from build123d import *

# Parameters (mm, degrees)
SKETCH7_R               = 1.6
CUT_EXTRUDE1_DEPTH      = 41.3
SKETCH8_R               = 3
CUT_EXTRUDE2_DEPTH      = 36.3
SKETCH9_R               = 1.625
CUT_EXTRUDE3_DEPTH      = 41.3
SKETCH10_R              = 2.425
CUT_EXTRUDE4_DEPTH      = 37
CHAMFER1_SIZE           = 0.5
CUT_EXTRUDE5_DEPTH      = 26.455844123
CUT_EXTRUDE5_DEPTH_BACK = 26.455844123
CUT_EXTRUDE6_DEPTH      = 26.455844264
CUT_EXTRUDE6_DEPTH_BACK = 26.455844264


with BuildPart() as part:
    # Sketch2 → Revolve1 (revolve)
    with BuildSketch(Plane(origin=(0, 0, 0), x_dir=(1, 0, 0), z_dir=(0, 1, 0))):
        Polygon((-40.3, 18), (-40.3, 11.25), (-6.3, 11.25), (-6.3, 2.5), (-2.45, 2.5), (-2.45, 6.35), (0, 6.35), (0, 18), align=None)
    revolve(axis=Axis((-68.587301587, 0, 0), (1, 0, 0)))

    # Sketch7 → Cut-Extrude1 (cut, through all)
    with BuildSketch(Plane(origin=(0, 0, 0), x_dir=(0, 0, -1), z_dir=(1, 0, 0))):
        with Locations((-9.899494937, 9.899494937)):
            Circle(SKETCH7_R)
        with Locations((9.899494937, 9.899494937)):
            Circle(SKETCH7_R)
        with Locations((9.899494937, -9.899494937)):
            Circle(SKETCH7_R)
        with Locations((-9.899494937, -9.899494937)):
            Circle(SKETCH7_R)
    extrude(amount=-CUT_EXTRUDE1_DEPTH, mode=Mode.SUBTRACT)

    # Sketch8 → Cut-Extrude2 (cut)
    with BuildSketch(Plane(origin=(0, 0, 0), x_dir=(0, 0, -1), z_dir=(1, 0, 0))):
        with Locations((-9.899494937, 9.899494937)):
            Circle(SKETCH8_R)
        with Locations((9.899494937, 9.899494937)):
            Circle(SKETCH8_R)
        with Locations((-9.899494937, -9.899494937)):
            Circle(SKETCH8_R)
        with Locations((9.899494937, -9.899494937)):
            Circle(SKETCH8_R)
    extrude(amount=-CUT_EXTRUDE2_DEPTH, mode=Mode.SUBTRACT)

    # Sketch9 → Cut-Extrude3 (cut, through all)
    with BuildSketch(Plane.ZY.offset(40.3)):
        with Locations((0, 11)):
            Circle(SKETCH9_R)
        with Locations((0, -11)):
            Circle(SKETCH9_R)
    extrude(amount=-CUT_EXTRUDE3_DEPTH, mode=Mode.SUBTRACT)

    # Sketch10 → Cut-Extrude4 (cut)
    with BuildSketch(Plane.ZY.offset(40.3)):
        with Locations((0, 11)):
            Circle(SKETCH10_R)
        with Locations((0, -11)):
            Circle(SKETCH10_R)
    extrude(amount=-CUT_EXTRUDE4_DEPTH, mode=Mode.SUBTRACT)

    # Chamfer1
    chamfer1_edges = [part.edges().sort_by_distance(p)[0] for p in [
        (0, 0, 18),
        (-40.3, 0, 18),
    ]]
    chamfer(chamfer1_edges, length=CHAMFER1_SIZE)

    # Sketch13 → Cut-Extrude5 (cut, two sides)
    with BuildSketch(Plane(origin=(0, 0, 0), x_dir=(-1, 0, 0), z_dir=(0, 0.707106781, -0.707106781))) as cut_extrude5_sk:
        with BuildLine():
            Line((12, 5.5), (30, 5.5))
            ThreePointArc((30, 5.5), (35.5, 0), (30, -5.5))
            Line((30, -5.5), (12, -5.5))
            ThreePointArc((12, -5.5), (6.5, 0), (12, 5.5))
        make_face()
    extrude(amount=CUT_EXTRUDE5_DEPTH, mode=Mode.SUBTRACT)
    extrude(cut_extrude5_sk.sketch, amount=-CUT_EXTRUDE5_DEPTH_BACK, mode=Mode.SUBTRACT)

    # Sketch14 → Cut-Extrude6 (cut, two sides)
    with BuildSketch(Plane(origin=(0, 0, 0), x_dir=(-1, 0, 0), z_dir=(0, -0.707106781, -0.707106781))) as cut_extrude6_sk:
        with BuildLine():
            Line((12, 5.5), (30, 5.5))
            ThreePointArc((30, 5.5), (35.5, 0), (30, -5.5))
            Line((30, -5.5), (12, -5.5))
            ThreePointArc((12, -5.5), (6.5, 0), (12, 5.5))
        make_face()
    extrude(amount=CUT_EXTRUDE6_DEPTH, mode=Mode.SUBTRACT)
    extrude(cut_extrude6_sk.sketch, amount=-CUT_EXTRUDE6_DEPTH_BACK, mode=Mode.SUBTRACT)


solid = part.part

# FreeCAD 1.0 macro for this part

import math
import FreeCAD as App
import Part
import Sketcher

V = App.Vector
Q = App.Units.Quantity


def edges_at(feature, points):
    """Names of the edges that pass closest to the given points."""
    edges = feature.Shape.Edges
    near = lambda p: min(range(len(edges)), key=lambda i: edges[i].distToShape(Part.Vertex(*p))[0])
    return sorted({f"Edge{near(p) + 1}" for p in points})

doc = App.newDocument("Part")
body = doc.addObject("PartDesign::Body", "Body")

# Sketch on XZ plane
sketch1 = doc.addObject("Sketcher::SketchObject", "Sketch")
body.addObject(sketch1)
sketch1.AttachmentSupport = (doc.XZ_Plane, [""])
sketch1.MapMode = "FlatFace"
sketch1.addGeometry([
    Part.LineSegment(V(-40.3, -18, 0), V(-40.3, -11.25, 0)),  # 0
    Part.LineSegment(V(-40.3, -11.25, 0), V(-6.3, -11.25, 0)),  # 1
    Part.LineSegment(V(-6.3, -11.25, 0), V(-6.3, -2.5, 0)),  # 2
    Part.LineSegment(V(-6.3, -2.5, 0), V(-2.45, -2.5, 0)),  # 3
    Part.LineSegment(V(-2.45, -2.5, 0), V(-2.45, -6.35, 0)),  # 4
    Part.LineSegment(V(-2.45, -6.35, 0), V(0, -6.35, 0)),  # 5
    Part.LineSegment(V(0, -6.35, 0), V(0, -18, 0)),  # 6
    Part.LineSegment(V(0, -18, 0), V(-40.3, -18, 0)),  # 7
], False)
sketch1.addConstraint([
    Sketcher.Constraint("Coincident", 0, 2, 1, 1),
    Sketcher.Constraint("Coincident", 1, 2, 2, 1),
    Sketcher.Constraint("Coincident", 2, 2, 3, 1),
    Sketcher.Constraint("Coincident", 3, 2, 4, 1),
    Sketcher.Constraint("Coincident", 4, 2, 5, 1),
    Sketcher.Constraint("Coincident", 5, 2, 6, 1),
    Sketcher.Constraint("Coincident", 6, 2, 7, 1),
    Sketcher.Constraint("Coincident", 7, 2, 0, 1),
    Sketcher.Constraint("Vertical", 0),
    Sketcher.Constraint("Horizontal", 1),
    Sketcher.Constraint("Vertical", 2),
    Sketcher.Constraint("Horizontal", 3),
    Sketcher.Constraint("Vertical", 4),
    Sketcher.Constraint("Horizontal", 5),
    Sketcher.Constraint("Vertical", 6),
    Sketcher.Constraint("Horizontal", 7),
    Sketcher.Constraint("PointOnObject", 5, 2, -2),
    Sketcher.Constraint("Equal", 3, 4),
    Sketcher.Constraint("DistanceX", 1, 1, 1, 2, Q("34 mm")),
    Sketcher.Constraint("DistanceX", 7, 2, 7, 1, Q("40.3 mm")),
    Sketcher.Constraint("DistanceY", 6, 2, -1, 1, Q("18 mm")),
    Sketcher.Constraint("DistanceX", 3, 1, 3, 2, Q("3.85 mm")),
    Sketcher.Constraint("DistanceY", 0, 1, 0, 2, Q("6.75 mm")),
    Sketcher.Constraint("DistanceY", 2, 1, 2, 2, Q("8.75 mm")),
])
revolution = doc.addObject("PartDesign::Revolution", "Revolution")
body.addObject(revolution)
revolution.Profile = sketch1
revolution.ReferenceAxis = (sketch1, ["H_Axis"])
revolution.Angle = 360

# Sketch on YZ plane
sketch2 = doc.addObject("Sketcher::SketchObject", "Sketch001")
body.addObject(sketch2)
sketch2.AttachmentSupport = (doc.YZ_Plane, [""])
sketch2.MapMode = "FlatFace"
sketch2.addGeometry([
    Part.Circle(V(9.899495, 9.899495, 0), V(0, 0, 1), 1.6),
    Part.Circle(V(9.899495, -9.899495, 0), V(0, 0, 1), 1.6),
    Part.Circle(V(-9.899495, -9.899495, 0), V(0, 0, 1), 1.6),
    Part.Circle(V(-9.899495, 9.899495, 0), V(0, 0, 1), 1.6),
], False)
sketch2.addConstraint([
    Sketcher.Constraint("Equal", 0, 1),
    Sketcher.Constraint("Equal", 1, 2),
    Sketcher.Constraint("Equal", 2, 3),
    Sketcher.Constraint("Symmetric", 0, 3, 2, 3, -1, 1),
    Sketcher.Constraint("Symmetric", 1, 3, 3, 3, -1, 1),
    Sketcher.Constraint("Symmetric", 1, 3, 2, 3, -2),
    Sketcher.Constraint("Diameter", 0, Q("3.2 mm")),
    Sketcher.Constraint("DistanceY", 1, 3, 0, 3, Q("19.79899 mm")),
    Sketcher.Constraint("DistanceX", 2, 3, 1, 3, Q("19.79899 mm")),
])
pocket1 = doc.addObject("PartDesign::Pocket", "Pocket")
body.addObject(pocket1)
pocket1.Profile = sketch2
pocket1.Type = "ThroughAll"

# Sketch on YZ plane
sketch3 = doc.addObject("Sketcher::SketchObject", "Sketch002")
body.addObject(sketch3)
sketch3.AttachmentSupport = (doc.YZ_Plane, [""])
sketch3.MapMode = "FlatFace"
sketch3.addGeometry([
    Part.Circle(V(9.899495, 9.899495, 0), V(0, 0, 1), 3),
    Part.Circle(V(9.899495, -9.899495, 0), V(0, 0, 1), 3),
    Part.Circle(V(-9.899495, 9.899495, 0), V(0, 0, 1), 3),
    Part.Circle(V(-9.899495, -9.899495, 0), V(0, 0, 1), 3),
], False)
sketch3.addConstraint([
    Sketcher.Constraint("Equal", 0, 1),
    Sketcher.Constraint("Equal", 1, 2),
    Sketcher.Constraint("Equal", 2, 3),
    Sketcher.Constraint("Symmetric", 1, 3, 2, 3, -1, 1),
    Sketcher.Constraint("Symmetric", 0, 3, 3, 3, -1, 1),
    Sketcher.Constraint("Symmetric", 0, 3, 2, 3, -2),
    Sketcher.Constraint("Diameter", 0, Q("6 mm")),
    Sketcher.Constraint("DistanceY", 1, 3, 0, 3, Q("19.79899 mm")),
    Sketcher.Constraint("DistanceX", 2, 3, 0, 3, Q("19.79899 mm")),
])
pocket2 = doc.addObject("PartDesign::Pocket", "Pocket001")
body.addObject(pocket2)
pocket2.Profile = sketch3
pocket2.Length = 36.3

# Sketch on YZ plane
sketch4 = doc.addObject("Sketcher::SketchObject", "Sketch003")
body.addObject(sketch4)
sketch4.AttachmentSupport = (doc.YZ_Plane, [""])
sketch4.MapMode = "FlatFace"
sketch4.AttachmentOffset = App.Placement(V(0, 0, -40.3), App.Rotation())
sketch4.addGeometry([
    Part.Circle(V(11, 0, 0), V(0, 0, 1), 1.625),
    Part.Circle(V(-11, 0, 0), V(0, 0, 1), 1.625),
], False)
sketch4.addConstraint([
    Sketcher.Constraint("Equal", 0, 1),
    Sketcher.Constraint("Symmetric", 0, 3, 1, 3, -1, 1),
    Sketcher.Constraint("PointOnObject", 0, 3, -1),
    Sketcher.Constraint("Diameter", 0, Q("3.25 mm")),
    Sketcher.Constraint("DistanceX", -1, 1, 0, 3, Q("11 mm")),
])
pocket3 = doc.addObject("PartDesign::Pocket", "Pocket002")
body.addObject(pocket3)
pocket3.Profile = sketch4
pocket3.Type = "ThroughAll"
pocket3.Reversed = True

# Sketch on YZ plane
sketch5 = doc.addObject("Sketcher::SketchObject", "Sketch004")
body.addObject(sketch5)
sketch5.AttachmentSupport = (doc.YZ_Plane, [""])
sketch5.MapMode = "FlatFace"
sketch5.AttachmentOffset = App.Placement(V(0, 0, -40.3), App.Rotation())
sketch5.addGeometry([
    Part.Circle(V(11, 0, 0), V(0, 0, 1), 2.425),
    Part.Circle(V(-11, 0, 0), V(0, 0, 1), 2.425),
], False)
sketch5.addConstraint([
    Sketcher.Constraint("Equal", 0, 1),
    Sketcher.Constraint("Symmetric", 0, 3, 1, 3, -1, 1),
    Sketcher.Constraint("PointOnObject", 0, 3, -1),
    Sketcher.Constraint("Diameter", 0, Q("4.85 mm")),
    Sketcher.Constraint("DistanceX", -1, 1, 0, 3, Q("11 mm")),
])
pocket4 = doc.addObject("PartDesign::Pocket", "Pocket003")
body.addObject(pocket4)
pocket4.Profile = sketch5
pocket4.Length = 37
pocket4.Reversed = True
doc.recompute()

chamfer = doc.addObject("PartDesign::Chamfer", "Chamfer")
body.addObject(chamfer)
chamfer.Base = (pocket4, edges_at(pocket4, [(0, 0, 18), (-40.3, 0, 18)]))
chamfer.Size = 0.5

# Sketch on an angled plane
sketch6 = doc.addObject("Sketcher::SketchObject", "Sketch005")
body.addObject(sketch6)
sketch6.Placement = App.Placement(V(0, 0, 0), App.Rotation(V(-1, 0, 0), V(0, 0.707106781, 0.707106781), V(0, 0.707106781, -0.707106781), "ZXY"))
sketch6.addGeometry([
    Part.LineSegment(V(30, 5.5, 0), V(12, 5.5, 0)),
    Part.ArcOfCircle(Part.Circle(V(12, 0, 0), V(0, 0, 1), 5.5), math.radians(90), math.radians(270)),
    Part.LineSegment(V(12, -5.5, 0), V(30, -5.5, 0)),
    Part.ArcOfCircle(Part.Circle(V(30, 0, 0), V(0, 0, 1), 5.5), math.radians(-90), math.radians(90)),
], False)
sketch6.addConstraint([
    Sketcher.Constraint("Tangent", 0, 2, 1, 1),
    Sketcher.Constraint("Tangent", 1, 2, 2, 1),
    Sketcher.Constraint("Tangent", 2, 2, 3, 1),
    Sketcher.Constraint("Tangent", 3, 2, 0, 1),
    Sketcher.Constraint("Horizontal", 0),
    Sketcher.Constraint("Horizontal", 2),
    Sketcher.Constraint("PointOnObject", 1, 3, -1),
    Sketcher.Constraint("Radius", 1, Q("5.5 mm")),
    Sketcher.Constraint("DistanceX", 0, 2, 0, 1, Q("18 mm")),
    Sketcher.Constraint("DistanceX", -1, 1, 1, 3, Q("12 mm")),
])
pocket5 = doc.addObject("PartDesign::Pocket", "Pocket004")
body.addObject(pocket5)
pocket5.Profile = sketch6
pocket5.Type = "ThroughAll"
pocket5.Midplane = True

# Sketch on an angled plane
sketch7 = doc.addObject("Sketcher::SketchObject", "Sketch006")
body.addObject(sketch7)
sketch7.Placement = App.Placement(V(0, 0, 0), App.Rotation(V(-1, 0, 0), V(0, 0.707106781, -0.707106781), V(0, -0.707106781, -0.707106781), "ZXY"))
sketch7.addGeometry([
    Part.LineSegment(V(30, 5.5, 0), V(12, 5.5, 0)),
    Part.ArcOfCircle(Part.Circle(V(12, 0, 0), V(0, 0, 1), 5.5), math.radians(90), math.radians(270)),
    Part.LineSegment(V(12, -5.5, 0), V(30, -5.5, 0)),
    Part.ArcOfCircle(Part.Circle(V(30, 0, 0), V(0, 0, 1), 5.5), math.radians(-90), math.radians(90)),
], False)
sketch7.addConstraint([
    Sketcher.Constraint("Tangent", 0, 2, 1, 1),
    Sketcher.Constraint("Tangent", 1, 2, 2, 1),
    Sketcher.Constraint("Tangent", 2, 2, 3, 1),
    Sketcher.Constraint("Tangent", 3, 2, 0, 1),
    Sketcher.Constraint("Horizontal", 0),
    Sketcher.Constraint("Horizontal", 2),
    Sketcher.Constraint("PointOnObject", 1, 3, -1),
    Sketcher.Constraint("Radius", 1, Q("5.5 mm")),
    Sketcher.Constraint("DistanceX", 0, 2, 0, 1, Q("18 mm")),
    Sketcher.Constraint("DistanceX", -1, 1, 1, 3, Q("12 mm")),
])
pocket6 = doc.addObject("PartDesign::Pocket", "Pocket005")
body.addObject(pocket6)
pocket6.Profile = sketch7
pocket6.Type = "ThroughAll"
pocket6.Midplane = True

doc.recompute()
